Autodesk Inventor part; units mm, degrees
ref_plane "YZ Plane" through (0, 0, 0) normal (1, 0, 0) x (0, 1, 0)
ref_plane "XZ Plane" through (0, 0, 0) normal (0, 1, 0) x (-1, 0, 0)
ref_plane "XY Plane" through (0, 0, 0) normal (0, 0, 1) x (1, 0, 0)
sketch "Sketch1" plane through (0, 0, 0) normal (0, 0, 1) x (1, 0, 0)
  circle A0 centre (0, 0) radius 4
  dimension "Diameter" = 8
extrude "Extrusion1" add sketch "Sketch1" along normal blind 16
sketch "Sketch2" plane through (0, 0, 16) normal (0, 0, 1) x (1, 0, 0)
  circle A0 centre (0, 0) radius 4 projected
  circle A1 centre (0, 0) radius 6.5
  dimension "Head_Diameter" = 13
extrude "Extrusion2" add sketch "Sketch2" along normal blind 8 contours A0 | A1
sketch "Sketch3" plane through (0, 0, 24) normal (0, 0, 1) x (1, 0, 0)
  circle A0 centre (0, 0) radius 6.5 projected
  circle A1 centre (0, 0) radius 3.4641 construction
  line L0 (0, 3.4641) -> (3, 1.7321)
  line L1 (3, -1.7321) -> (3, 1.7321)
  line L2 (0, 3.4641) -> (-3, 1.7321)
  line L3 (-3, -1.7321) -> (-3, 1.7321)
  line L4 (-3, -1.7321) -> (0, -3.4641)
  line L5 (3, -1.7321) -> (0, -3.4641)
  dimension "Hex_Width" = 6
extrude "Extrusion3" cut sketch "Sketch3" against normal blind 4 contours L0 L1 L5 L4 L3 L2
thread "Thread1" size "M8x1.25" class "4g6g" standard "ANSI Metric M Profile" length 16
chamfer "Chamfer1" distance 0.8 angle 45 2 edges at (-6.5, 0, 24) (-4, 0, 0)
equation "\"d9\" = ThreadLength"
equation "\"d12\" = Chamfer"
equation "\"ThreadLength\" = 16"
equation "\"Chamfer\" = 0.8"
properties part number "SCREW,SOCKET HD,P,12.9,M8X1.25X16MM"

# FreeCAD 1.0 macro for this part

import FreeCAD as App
import Part
import Sketcher
from FreeCAD import Vector
Q = App.Units.Quantity


def edges_at(feature, points):
    """Names of the edges that pass closest to the given points."""
    edges = feature.Shape.Edges
    near = lambda p: min(range(len(edges)), key=lambda i: edges[i].distToShape(Part.Vertex(*p))[0])
    return sorted({f"Edge{near(p) + 1}" for p in points})


def add_polygon(sketch, points):
    """Adds a closed chain of lines whose ends are joined by coincident constraints."""
    first, n = sketch.GeometryCount, len(points)
    for a, b in zip(points, points[1:] + points[:1]):
        sketch.addGeometry(Part.LineSegment(App.Vector(*a, 0), App.Vector(*b, 0)), False)
    for i in range(n):
        sketch.addConstraint(Sketcher.Constraint("Coincident", first + i, 2, first + (i + 1) % n, 1))

doc = App.newDocument("Part")
params = doc.addObject("Spreadsheet::Sheet", "Params")
for row, (alias, value) in enumerate([
    ("sketch1_diameter", "8 mm"),
    ("pad1_length", "16 mm"),
    ("sketch2_diameter", "13 mm"),
    ("pad2_length", "8 mm"),
    ("pocket1_length", "4 mm"),
    ("chamfer_size", "0.8 mm"),
], start=1):
    params.set(f"A{row}", alias)
    params.set(f"B{row}", "=" + value)
    params.setAlias(f"B{row}", alias)

body = doc.addObject("PartDesign::Body", "Body")

# Sketch on XY plane
sketch1 = doc.addObject("Sketcher::SketchObject", "Sketch")
body.addObject(sketch1)
sketch1.AttachmentSupport = (doc.XY_Plane, [""])
sketch1.MapMode = "FlatFace"
sketch1.addGeometry(Part.Circle(Vector(0, 0, 0), Vector(0, 0, 1), 4), False)
sketch1.addConstraint([
    Sketcher.Constraint("Coincident", 0, 3, -1, 1),
    Sketcher.Constraint("Diameter", 0, 8.0),
])
sketch1.setExpression("Constraints[1]", "Params.sketch1_diameter")
pad1 = doc.addObject("PartDesign::Pad", "Pad")
body.addObject(pad1)
pad1.Profile = sketch1
pad1.setExpression("Length", "Params.pad1_length")

# Sketch on XY plane
sketch2 = doc.addObject("Sketcher::SketchObject", "Sketch001")
body.addObject(sketch2)
sketch2.AttachmentSupport = (doc.XY_Plane, [""])
sketch2.MapMode = "FlatFace"
sketch2.AttachmentOffset = App.Placement(Vector(0, 0, 16), App.Rotation())
sketch2.addGeometry(Part.Circle(Vector(0, 0, 0), Vector(0, 0, 1), 6.5), False)
sketch2.addConstraint([
    Sketcher.Constraint("Coincident", 0, 3, -1, 1),
    Sketcher.Constraint("Diameter", 0, 13.0),
])
sketch2.setExpression("Constraints[1]", "Params.sketch2_diameter")
pad2 = doc.addObject("PartDesign::Pad", "Pad001")
body.addObject(pad2)
pad2.Profile = sketch2
pad2.setExpression("Length", "Params.pad2_length")

# Sketch on XY plane
sketch3 = doc.addObject("Sketcher::SketchObject", "Sketch002")
body.addObject(sketch3)
sketch3.AttachmentSupport = (doc.XY_Plane, [""])
sketch3.MapMode = "FlatFace"
sketch3.AttachmentOffset = App.Placement(Vector(0, 0, 24), App.Rotation())
add_polygon(sketch3, [(3, 1.7321), (0, 3.4641), (-3, 1.7321), (-3, -1.7321), (0, -3.4641), (3, -1.7321)])  # lines 0-5
sketch3.addConstraint([
    Sketcher.Constraint("Vertical", 2),
    Sketcher.Constraint("Vertical", 5),
    Sketcher.Constraint("Symmetric", 0, 2, 3, 2, -1, 1),
    Sketcher.Constraint("Symmetric", 1, 2, 4, 2, -1, 1),
    Sketcher.Constraint("PointOnObject", 0, 2, -2),
    Sketcher.Constraint("Parallel", 0, 3),
    Sketcher.Constraint("Horizontal", 2, 2, 4, 2),
    Sketcher.Constraint("DistanceX", 2, 2, 4, 2, 6.0),
    Sketcher.Constraint("Angle", 0, Q("150.0007 deg")),
    Sketcher.Constraint("DistanceY", 2, 2, 2, 1, 3.4642),
])
pocket1 = doc.addObject("PartDesign::Pocket", "Pocket")
body.addObject(pocket1)
pocket1.Profile = sketch3
pocket1.setExpression("Length", "Params.pocket1_length")
doc.recompute()

chamfer = doc.addObject("PartDesign::Chamfer", "Chamfer")
body.addObject(chamfer)
chamfer.Base = (pocket1, edges_at(pocket1, [(-6.5, 0, 24), (-4, 0, 0)]))
chamfer.setExpression("Size", "Params.chamfer_size")

doc.recompute()
